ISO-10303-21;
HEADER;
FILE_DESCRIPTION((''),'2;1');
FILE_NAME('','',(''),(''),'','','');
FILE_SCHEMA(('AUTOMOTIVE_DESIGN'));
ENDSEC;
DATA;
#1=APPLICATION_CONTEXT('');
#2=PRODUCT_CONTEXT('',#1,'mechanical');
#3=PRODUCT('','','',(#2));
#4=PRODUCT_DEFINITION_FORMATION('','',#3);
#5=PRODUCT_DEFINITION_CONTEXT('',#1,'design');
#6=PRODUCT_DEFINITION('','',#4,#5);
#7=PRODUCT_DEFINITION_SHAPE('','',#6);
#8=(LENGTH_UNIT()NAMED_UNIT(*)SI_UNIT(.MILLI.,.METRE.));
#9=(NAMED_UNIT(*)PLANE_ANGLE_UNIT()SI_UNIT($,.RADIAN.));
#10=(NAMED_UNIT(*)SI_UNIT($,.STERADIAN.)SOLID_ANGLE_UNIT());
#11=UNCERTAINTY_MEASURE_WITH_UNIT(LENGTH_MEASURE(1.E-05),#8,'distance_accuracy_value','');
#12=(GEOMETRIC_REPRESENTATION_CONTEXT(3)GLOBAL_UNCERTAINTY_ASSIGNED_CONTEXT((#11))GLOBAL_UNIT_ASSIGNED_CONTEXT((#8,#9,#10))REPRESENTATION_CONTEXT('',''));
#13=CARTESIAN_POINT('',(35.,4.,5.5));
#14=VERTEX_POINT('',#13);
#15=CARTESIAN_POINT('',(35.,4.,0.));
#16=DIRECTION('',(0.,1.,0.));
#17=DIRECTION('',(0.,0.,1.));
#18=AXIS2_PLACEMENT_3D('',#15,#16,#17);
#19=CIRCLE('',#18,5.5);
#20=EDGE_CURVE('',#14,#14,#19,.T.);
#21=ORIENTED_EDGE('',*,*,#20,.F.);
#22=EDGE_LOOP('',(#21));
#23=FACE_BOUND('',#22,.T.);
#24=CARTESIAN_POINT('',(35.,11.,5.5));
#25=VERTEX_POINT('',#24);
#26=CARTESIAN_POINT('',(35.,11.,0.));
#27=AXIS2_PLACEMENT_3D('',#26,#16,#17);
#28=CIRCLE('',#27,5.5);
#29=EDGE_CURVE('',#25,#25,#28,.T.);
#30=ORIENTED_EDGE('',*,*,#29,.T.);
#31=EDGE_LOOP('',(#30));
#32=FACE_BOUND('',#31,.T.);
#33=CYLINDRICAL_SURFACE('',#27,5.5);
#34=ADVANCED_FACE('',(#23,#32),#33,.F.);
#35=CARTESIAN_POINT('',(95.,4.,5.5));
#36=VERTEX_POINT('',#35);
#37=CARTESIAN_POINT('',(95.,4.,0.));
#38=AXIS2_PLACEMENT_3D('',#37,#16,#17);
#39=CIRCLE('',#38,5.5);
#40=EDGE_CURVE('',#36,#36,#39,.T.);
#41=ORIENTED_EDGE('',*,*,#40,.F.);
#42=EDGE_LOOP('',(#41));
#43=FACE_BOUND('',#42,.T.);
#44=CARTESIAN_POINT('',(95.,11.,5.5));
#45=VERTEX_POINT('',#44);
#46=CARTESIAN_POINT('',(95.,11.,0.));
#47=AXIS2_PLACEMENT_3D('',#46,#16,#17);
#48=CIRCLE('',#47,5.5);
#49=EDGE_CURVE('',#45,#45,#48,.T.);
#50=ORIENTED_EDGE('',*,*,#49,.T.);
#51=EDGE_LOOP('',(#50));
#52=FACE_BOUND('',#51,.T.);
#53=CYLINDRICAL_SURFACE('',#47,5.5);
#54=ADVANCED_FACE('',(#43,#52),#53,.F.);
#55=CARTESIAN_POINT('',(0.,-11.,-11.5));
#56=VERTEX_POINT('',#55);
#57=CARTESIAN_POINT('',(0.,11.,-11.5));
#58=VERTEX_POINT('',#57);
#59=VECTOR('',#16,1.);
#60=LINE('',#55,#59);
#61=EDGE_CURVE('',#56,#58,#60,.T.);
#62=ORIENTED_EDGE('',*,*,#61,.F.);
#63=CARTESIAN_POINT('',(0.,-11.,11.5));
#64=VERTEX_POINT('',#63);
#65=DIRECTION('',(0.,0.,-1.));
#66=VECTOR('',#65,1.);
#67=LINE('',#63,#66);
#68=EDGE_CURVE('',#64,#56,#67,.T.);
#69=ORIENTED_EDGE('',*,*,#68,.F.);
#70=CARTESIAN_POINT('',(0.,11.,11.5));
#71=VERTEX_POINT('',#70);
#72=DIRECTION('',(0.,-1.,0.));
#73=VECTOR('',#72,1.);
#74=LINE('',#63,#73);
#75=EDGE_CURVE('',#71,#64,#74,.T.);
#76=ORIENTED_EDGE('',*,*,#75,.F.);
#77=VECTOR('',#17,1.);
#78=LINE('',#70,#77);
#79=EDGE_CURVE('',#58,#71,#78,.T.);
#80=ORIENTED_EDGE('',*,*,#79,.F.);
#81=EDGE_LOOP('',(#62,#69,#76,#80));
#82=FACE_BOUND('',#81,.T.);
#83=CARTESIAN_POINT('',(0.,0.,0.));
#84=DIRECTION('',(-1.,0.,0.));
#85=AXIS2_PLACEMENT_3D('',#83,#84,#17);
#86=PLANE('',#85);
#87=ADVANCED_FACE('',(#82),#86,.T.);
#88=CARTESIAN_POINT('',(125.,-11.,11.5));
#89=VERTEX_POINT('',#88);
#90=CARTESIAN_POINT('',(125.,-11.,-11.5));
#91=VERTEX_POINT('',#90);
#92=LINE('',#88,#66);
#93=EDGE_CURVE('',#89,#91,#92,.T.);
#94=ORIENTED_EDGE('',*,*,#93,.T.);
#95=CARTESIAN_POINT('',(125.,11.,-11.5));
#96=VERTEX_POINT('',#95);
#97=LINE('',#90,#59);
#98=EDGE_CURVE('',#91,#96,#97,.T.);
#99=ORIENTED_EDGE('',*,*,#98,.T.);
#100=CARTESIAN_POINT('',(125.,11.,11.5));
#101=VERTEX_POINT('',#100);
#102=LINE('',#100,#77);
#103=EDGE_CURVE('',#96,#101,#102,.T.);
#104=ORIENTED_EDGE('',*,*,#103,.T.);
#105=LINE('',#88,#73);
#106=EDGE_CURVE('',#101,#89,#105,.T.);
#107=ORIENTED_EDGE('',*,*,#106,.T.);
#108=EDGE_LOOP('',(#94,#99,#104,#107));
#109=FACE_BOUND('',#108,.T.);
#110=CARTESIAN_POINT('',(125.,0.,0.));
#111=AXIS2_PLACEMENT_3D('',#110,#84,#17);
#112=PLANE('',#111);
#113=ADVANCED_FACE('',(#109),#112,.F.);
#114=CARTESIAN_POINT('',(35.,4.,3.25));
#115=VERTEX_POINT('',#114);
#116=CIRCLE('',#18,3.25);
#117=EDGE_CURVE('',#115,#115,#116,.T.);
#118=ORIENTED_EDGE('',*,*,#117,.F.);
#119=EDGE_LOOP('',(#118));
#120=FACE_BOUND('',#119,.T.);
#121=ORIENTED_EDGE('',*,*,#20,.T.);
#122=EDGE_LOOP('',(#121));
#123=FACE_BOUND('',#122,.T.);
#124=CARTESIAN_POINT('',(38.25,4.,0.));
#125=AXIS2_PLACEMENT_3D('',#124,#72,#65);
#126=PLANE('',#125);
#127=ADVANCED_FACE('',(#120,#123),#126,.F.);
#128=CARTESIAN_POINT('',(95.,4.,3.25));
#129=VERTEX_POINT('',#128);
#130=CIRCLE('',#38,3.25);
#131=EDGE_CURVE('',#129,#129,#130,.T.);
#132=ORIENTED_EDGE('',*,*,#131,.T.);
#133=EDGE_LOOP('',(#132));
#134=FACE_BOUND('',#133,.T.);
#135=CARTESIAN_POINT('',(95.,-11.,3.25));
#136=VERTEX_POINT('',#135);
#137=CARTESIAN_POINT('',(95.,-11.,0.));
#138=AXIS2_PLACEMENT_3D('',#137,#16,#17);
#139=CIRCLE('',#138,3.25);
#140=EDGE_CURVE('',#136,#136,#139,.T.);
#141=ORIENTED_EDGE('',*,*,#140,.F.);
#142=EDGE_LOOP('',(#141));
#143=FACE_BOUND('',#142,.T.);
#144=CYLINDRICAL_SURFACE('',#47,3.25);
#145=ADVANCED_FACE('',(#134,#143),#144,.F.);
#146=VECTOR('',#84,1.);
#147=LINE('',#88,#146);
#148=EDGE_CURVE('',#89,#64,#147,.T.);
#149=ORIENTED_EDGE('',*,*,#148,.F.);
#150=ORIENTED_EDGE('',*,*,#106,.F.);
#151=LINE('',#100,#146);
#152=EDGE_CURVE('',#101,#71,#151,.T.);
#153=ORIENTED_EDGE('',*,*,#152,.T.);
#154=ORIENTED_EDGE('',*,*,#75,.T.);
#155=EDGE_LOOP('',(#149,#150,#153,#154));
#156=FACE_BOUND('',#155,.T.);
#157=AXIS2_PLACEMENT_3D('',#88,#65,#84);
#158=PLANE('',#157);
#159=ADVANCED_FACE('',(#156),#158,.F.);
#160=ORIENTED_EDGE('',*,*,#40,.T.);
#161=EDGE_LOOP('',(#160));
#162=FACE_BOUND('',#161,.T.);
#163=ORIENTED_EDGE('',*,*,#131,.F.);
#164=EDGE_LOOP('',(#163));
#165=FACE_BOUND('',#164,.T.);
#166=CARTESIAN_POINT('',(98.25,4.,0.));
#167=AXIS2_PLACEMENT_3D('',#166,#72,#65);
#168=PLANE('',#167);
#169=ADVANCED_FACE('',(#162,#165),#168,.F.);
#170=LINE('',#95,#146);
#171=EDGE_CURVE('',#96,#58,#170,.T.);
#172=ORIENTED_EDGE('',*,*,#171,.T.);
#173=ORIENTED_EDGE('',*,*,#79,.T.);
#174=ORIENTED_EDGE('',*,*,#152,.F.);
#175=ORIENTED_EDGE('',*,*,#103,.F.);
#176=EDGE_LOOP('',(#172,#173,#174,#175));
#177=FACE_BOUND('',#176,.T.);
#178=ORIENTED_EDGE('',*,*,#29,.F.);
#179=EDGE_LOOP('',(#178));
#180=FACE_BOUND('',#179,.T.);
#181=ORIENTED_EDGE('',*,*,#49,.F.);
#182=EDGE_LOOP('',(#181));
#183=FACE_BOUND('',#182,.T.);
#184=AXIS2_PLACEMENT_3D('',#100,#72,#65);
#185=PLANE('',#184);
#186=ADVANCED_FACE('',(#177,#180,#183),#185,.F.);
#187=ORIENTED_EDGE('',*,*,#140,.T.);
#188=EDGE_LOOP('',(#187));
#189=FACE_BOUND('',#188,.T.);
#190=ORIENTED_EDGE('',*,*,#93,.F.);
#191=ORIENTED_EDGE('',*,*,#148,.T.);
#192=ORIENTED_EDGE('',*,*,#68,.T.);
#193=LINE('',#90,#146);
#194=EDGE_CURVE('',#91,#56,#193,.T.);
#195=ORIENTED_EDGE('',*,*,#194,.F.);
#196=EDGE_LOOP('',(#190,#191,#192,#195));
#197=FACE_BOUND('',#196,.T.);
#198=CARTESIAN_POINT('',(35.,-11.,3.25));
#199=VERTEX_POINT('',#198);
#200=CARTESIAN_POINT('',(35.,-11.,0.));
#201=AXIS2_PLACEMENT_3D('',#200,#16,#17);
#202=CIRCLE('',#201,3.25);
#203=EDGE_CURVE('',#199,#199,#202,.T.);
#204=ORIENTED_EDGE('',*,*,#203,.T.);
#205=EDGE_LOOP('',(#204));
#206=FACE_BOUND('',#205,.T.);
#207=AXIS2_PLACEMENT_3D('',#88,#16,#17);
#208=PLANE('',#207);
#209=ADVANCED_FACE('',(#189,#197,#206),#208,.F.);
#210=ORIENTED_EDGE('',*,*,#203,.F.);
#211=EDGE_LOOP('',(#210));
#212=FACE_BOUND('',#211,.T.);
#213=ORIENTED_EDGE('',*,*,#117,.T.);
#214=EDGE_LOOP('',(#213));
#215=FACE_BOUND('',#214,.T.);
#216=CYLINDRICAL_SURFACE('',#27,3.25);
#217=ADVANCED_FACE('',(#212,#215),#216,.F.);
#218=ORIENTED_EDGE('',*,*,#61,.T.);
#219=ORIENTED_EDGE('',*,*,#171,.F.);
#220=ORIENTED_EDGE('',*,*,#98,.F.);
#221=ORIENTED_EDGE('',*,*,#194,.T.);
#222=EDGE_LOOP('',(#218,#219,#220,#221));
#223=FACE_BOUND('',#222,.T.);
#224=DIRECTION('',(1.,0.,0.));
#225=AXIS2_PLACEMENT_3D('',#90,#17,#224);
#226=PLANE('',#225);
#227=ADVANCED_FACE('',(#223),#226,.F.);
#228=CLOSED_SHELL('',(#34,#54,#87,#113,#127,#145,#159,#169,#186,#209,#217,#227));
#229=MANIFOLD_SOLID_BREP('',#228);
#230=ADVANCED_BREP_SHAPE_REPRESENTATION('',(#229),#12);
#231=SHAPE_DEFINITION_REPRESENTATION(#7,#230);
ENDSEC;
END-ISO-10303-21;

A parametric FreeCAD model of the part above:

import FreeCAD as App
import Part
import Sketcher
Q = App.Units.Quantity


def add_polygon(sketch, points):
    """Adds a closed chain of lines whose ends are joined by coincident constraints."""
    first, n = sketch.GeometryCount, len(points)
    for a, b in zip(points, points[1:] + points[:1]):
        sketch.addGeometry(Part.LineSegment(App.Vector(*a, 0), App.Vector(*b, 0)), False)
    for i in range(n):
        sketch.addConstraint(Sketcher.Constraint("Coincident", first + i, 2, first + (i + 1) % n, 1))

doc = App.newDocument("Part")
body = doc.addObject("PartDesign::Body", "Body")

sketch1 = body.newObject("Sketcher::SketchObject", "Sketch")
sketch1.AttachmentSupport = (doc.getObject("YZ_Plane"), [""])
sketch1.MapMode = "FlatFace"
add_polygon(sketch1, [(11, 12), (-11, 12), (-11, -12), (11, -12)])
sketch1.addConstraint(Sketcher.Constraint("Horizontal", 0))
sketch1.addConstraint(Sketcher.Constraint("Vertical", 1))
sketch1.addConstraint(Sketcher.Constraint("Horizontal", 2))
sketch1.addConstraint(Sketcher.Constraint("Vertical", 3))
sketch1.addConstraint(Sketcher.Constraint("Symmetric", 0, 2, 2, 2, -1, 1))
sketch1.addConstraint(Sketcher.Constraint("DistanceX", 0, 2, 0, 1, Q("22 mm")))
sketch1.addConstraint(Sketcher.Constraint("DistanceY", 1, 2, 1, 1, Q("23 mm")))
pad1 = body.newObject("PartDesign::Pad", "Pad")
pad1.Profile = sketch1
pad1.Length = 125

sketch2 = body.newObject("Sketcher::SketchObject", "Sketch001")
sketch2.AttachmentSupport = (doc.getObject("XZ_Plane"), [""])
sketch2.MapMode = "FlatFace"
sketch2.AttachmentOffset = App.Placement(App.Vector(0, 0, -11), App.Rotation())
sketch2.addGeometry(Part.Circle(App.Vector(35, 0, 0), App.Vector(0, 0, 1), 3.2), False)
sketch2.addConstraint(Sketcher.Constraint("PointOnObject", 0, 3, -1))
sketch2.addConstraint(Sketcher.Constraint("Diameter", 0, Q("6.5 mm")))
sketch2.addConstraint(Sketcher.Constraint("DistanceX", -1, 1, 0, 3, Q("35 mm")))
doc.recompute()
hole = body.newObject("PartDesign::Hole", "Hole")
hole.Profile = sketch2
hole.ThreadType = "None"
hole.Diameter = 6.5
hole.DepthType = "ThroughAll"
hole.HoleCutType = "Counterbore"
hole.HoleCutDiameter = 11
hole.HoleCutDepth = 7
hole.Reversed = True
doc.recompute()

linearpattern = body.newObject("PartDesign::LinearPattern", "LinearPattern")
linearpattern.Originals = [hole]
linearpattern.Direction = (doc.getObject("X_Axis"), [""])
linearpattern.Mode = "offset"
linearpattern.Offset = 60
linearpattern.Occurrences = 2
body.Tip = linearpattern

doc.recompute()
